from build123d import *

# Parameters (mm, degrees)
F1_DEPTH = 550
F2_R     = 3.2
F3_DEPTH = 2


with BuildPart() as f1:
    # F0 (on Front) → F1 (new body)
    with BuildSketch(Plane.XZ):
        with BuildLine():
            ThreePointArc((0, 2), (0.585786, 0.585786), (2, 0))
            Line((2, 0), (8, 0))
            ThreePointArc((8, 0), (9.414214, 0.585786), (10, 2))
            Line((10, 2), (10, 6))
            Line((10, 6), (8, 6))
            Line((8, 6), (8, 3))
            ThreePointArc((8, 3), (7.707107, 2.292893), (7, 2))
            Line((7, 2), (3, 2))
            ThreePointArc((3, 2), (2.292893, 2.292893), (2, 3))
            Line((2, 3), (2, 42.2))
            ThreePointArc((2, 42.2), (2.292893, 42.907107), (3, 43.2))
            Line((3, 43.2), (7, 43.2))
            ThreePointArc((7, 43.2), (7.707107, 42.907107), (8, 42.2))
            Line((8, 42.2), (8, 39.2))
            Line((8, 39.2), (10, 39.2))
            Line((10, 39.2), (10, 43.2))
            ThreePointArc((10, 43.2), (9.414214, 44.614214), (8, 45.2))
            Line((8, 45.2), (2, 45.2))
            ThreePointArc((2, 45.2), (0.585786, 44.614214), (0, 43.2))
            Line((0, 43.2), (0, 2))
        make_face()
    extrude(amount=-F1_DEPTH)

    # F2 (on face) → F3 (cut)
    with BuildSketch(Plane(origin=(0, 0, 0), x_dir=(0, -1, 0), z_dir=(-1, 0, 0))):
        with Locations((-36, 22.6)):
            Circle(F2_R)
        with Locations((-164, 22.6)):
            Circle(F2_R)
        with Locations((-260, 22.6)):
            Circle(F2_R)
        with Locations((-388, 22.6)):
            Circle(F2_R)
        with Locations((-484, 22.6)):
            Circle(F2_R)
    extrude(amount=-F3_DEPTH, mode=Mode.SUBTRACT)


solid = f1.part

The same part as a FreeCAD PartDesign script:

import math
import FreeCAD as App
import Part
import Sketcher
Q = App.Units.Quantity

doc = App.newDocument("Part")
body = doc.addObject("PartDesign::Body", "Body")

# Sketch on XZ plane
sketch1 = body.newObject("Sketcher::SketchObject", "Sketch")
sketch1.AttachmentSupport = (doc.getObject("XZ_Plane"), [""])
sketch1.MapMode = "FlatFace"
sketch1.addGeometry([
    Part.ArcOfCircle(Part.Circle(App.Vector(2, 2, 0), App.Vector(0, 0, 1), 2), math.radians(180), math.radians(270)),  # 0
    Part.LineSegment(App.Vector(2, 0, 0), App.Vector(8, 0, 0)),  # 1
    Part.ArcOfCircle(Part.Circle(App.Vector(8, 2, 0), App.Vector(0, 0, 1), 2), math.radians(-90), math.radians(0)),  # 2
    Part.LineSegment(App.Vector(10, 2, 0), App.Vector(10, 6, 0)),  # 3
    Part.LineSegment(App.Vector(10, 6, 0), App.Vector(8, 6, 0)),  # 4
    Part.LineSegment(App.Vector(8, 6, 0), App.Vector(8, 3, 0)),  # 5
    Part.ArcOfCircle(Part.Circle(App.Vector(7, 3, 0), App.Vector(0, 0, 1), 1), math.radians(-90), math.radians(0)),  # 6
    Part.LineSegment(App.Vector(7, 2, 0), App.Vector(3, 2, 0)),  # 7
    Part.ArcOfCircle(Part.Circle(App.Vector(3, 3, 0), App.Vector(0, 0, 1), 1), math.radians(180), math.radians(270)),  # 8
    Part.LineSegment(App.Vector(2, 3, 0), App.Vector(2, 42.2, 0)),  # 9
    Part.ArcOfCircle(Part.Circle(App.Vector(3, 42.2, 0), App.Vector(0, 0, 1), 1), math.radians(90), math.radians(180)),  # 10
    Part.LineSegment(App.Vector(3, 43.2, 0), App.Vector(7, 43.2, 0)),  # 11
    Part.ArcOfCircle(Part.Circle(App.Vector(7, 42.2, 0), App.Vector(0, 0, 1), 1), math.radians(0), math.radians(90)),  # 12
    Part.LineSegment(App.Vector(8, 42.2, 0), App.Vector(8, 39.2, 0)),  # 13
    Part.LineSegment(App.Vector(8, 39.2, 0), App.Vector(10, 39.2, 0)),  # 14
    Part.LineSegment(App.Vector(10, 39.2, 0), App.Vector(10, 43.2, 0)),  # 15
    Part.ArcOfCircle(Part.Circle(App.Vector(8, 43.2, 0), App.Vector(0, 0, 1), 2), math.radians(0), math.radians(90)),  # 16
    Part.LineSegment(App.Vector(8, 45.2, 0), App.Vector(2, 45.2, 0)),  # 17
    Part.ArcOfCircle(Part.Circle(App.Vector(2, 43.2, 0), App.Vector(0, 0, 1), 2), math.radians(90), math.radians(180)),  # 18
    Part.LineSegment(App.Vector(0, 43.2, 0), App.Vector(0, 2, 0)),  # 19
], False)
sketch1.addConstraint([
    Sketcher.Constraint("Tangent", 0, 2, 1, 1),
    Sketcher.Constraint("Tangent", 1, 2, 2, 1),
    Sketcher.Constraint("Tangent", 2, 2, 3, 1),
    Sketcher.Constraint("Coincident", 3, 2, 4, 1),
    Sketcher.Constraint("Coincident", 4, 2, 5, 1),
    Sketcher.Constraint("Tangent", 5, 2, 6, 2),
    Sketcher.Constraint("Tangent", 6, 1, 7, 1),
    Sketcher.Constraint("Tangent", 7, 2, 8, 2),
    Sketcher.Constraint("Tangent", 8, 1, 9, 1),
    Sketcher.Constraint("Tangent", 9, 2, 10, 2),
    Sketcher.Constraint("Tangent", 10, 1, 11, 1),
    Sketcher.Constraint("Tangent", 11, 2, 12, 2),
    Sketcher.Constraint("Tangent", 12, 1, 13, 1),
    Sketcher.Constraint("Coincident", 13, 2, 14, 1),
    Sketcher.Constraint("Coincident", 14, 2, 15, 1),
    Sketcher.Constraint("Tangent", 15, 2, 16, 1),
    Sketcher.Constraint("Tangent", 16, 2, 17, 1),
    Sketcher.Constraint("Tangent", 17, 2, 18, 1),
    Sketcher.Constraint("Tangent", 18, 2, 19, 1),
    Sketcher.Constraint("Tangent", 19, 2, 0, 1),
    Sketcher.Constraint("Horizontal", 1),
    Sketcher.Constraint("Vertical", 3),
    Sketcher.Constraint("Horizontal", 4),
    Sketcher.Constraint("Vertical", 5),
    Sketcher.Constraint("Horizontal", 7),
    Sketcher.Constraint("Vertical", 9),
    Sketcher.Constraint("Horizontal", 11),
    Sketcher.Constraint("Vertical", 13),
    Sketcher.Constraint("Horizontal", 14),
    Sketcher.Constraint("Vertical", 15),
    Sketcher.Constraint("Horizontal", 17),
    Sketcher.Constraint("Vertical", 19),
    Sketcher.Constraint("Equal", 0, 2),
    Sketcher.Constraint("Equal", 6, 8),
    Sketcher.Constraint("Equal", 8, 10),
    Sketcher.Constraint("Equal", 10, 12),
    Sketcher.Constraint("Equal", 2, 16),
    Sketcher.Constraint("Equal", 16, 18),
    Sketcher.Constraint("PointOnObject", 0, 2, -1),
    Sketcher.Constraint("PointOnObject", 18, 2, -2),
    Sketcher.Constraint("Horizontal", 2, 2, 6, 1),
    Sketcher.Constraint("Horizontal", 18, 3, 10, 1),
    Sketcher.Constraint("Vertical", 6, 3, 12, 3),
    Sketcher.Constraint("Vertical", 2, 3, 16, 3),
    Sketcher.Constraint("Vertical", 1, 2, 4, 2),
    Sketcher.Constraint("Vertical", 0, 2, 8, 1),
    Sketcher.Constraint("Equal", 11, 3),
    Sketcher.Constraint("Equal", 5, 13),
    Sketcher.Constraint("Radius", 0, Q("1.999999 mm")),
    Sketcher.Constraint("Radius", 6, Q("0.999999 mm")),
    Sketcher.Constraint("DistanceX", 1, 1, 1, 2, Q("6 mm")),
    Sketcher.Constraint("DistanceY", 9, 1, 9, 2, Q("39.2 mm")),
])
pad1 = body.newObject("PartDesign::Pad", "Pad")
pad1.Profile = sketch1
pad1.Length = 550
pad1.Reversed = True

# Sketch on YZ plane
sketch2 = body.newObject("Sketcher::SketchObject", "Sketch001")
sketch2.AttachmentSupport = (doc.getObject("YZ_Plane"), [""])
sketch2.MapMode = "FlatFace"
sketch2.addGeometry([
    Part.Circle(App.Vector(36, 22.6, 0), App.Vector(0, 0, 1), 3.2),  # 0
    Part.Circle(App.Vector(164, 22.6, 0), App.Vector(0, 0, 1), 3.2),  # 1
    Part.Circle(App.Vector(260, 22.6, 0), App.Vector(0, 0, 1), 3.2),  # 2
    Part.Circle(App.Vector(388, 22.6, 0), App.Vector(0, 0, 1), 3.2),  # 3
    Part.Circle(App.Vector(484, 22.6, 0), App.Vector(0, 0, 1), 3.2),  # 4
], False)
sketch2.addConstraint([
    Sketcher.Constraint("Equal", 0, 1),
    Sketcher.Constraint("Equal", 1, 2),
    Sketcher.Constraint("Equal", 2, 3),
    Sketcher.Constraint("Equal", 3, 4),
    Sketcher.Constraint("Horizontal", 0, 3, 1, 3),
    Sketcher.Constraint("Horizontal", 1, 3, 2, 3),
    Sketcher.Constraint("Horizontal", 2, 3, 3, 3),
    Sketcher.Constraint("Horizontal", 3, 3, 4, 3),
    Sketcher.Constraint("Diameter", 0, Q("6.4 mm")),
    Sketcher.Constraint("DistanceX", -1, 1, 0, 3, Q("36 mm")),
    Sketcher.Constraint("DistanceX", -1, 1, 1, 3, Q("164 mm")),
    Sketcher.Constraint("DistanceX", -1, 1, 2, 3, Q("260 mm")),
    Sketcher.Constraint("DistanceX", -1, 1, 3, 3, Q("388 mm")),
    Sketcher.Constraint("DistanceX", -1, 1, 4, 3, Q("484 mm")),
    Sketcher.Constraint("DistanceY", -1, 1, 0, 3, Q("22.6 mm")),
])
pocket1 = body.newObject("PartDesign::Pocket", "Pocket")
pocket1.Profile = sketch2
pocket1.Length = 2
pocket1.Reversed = True

doc.recompute()
